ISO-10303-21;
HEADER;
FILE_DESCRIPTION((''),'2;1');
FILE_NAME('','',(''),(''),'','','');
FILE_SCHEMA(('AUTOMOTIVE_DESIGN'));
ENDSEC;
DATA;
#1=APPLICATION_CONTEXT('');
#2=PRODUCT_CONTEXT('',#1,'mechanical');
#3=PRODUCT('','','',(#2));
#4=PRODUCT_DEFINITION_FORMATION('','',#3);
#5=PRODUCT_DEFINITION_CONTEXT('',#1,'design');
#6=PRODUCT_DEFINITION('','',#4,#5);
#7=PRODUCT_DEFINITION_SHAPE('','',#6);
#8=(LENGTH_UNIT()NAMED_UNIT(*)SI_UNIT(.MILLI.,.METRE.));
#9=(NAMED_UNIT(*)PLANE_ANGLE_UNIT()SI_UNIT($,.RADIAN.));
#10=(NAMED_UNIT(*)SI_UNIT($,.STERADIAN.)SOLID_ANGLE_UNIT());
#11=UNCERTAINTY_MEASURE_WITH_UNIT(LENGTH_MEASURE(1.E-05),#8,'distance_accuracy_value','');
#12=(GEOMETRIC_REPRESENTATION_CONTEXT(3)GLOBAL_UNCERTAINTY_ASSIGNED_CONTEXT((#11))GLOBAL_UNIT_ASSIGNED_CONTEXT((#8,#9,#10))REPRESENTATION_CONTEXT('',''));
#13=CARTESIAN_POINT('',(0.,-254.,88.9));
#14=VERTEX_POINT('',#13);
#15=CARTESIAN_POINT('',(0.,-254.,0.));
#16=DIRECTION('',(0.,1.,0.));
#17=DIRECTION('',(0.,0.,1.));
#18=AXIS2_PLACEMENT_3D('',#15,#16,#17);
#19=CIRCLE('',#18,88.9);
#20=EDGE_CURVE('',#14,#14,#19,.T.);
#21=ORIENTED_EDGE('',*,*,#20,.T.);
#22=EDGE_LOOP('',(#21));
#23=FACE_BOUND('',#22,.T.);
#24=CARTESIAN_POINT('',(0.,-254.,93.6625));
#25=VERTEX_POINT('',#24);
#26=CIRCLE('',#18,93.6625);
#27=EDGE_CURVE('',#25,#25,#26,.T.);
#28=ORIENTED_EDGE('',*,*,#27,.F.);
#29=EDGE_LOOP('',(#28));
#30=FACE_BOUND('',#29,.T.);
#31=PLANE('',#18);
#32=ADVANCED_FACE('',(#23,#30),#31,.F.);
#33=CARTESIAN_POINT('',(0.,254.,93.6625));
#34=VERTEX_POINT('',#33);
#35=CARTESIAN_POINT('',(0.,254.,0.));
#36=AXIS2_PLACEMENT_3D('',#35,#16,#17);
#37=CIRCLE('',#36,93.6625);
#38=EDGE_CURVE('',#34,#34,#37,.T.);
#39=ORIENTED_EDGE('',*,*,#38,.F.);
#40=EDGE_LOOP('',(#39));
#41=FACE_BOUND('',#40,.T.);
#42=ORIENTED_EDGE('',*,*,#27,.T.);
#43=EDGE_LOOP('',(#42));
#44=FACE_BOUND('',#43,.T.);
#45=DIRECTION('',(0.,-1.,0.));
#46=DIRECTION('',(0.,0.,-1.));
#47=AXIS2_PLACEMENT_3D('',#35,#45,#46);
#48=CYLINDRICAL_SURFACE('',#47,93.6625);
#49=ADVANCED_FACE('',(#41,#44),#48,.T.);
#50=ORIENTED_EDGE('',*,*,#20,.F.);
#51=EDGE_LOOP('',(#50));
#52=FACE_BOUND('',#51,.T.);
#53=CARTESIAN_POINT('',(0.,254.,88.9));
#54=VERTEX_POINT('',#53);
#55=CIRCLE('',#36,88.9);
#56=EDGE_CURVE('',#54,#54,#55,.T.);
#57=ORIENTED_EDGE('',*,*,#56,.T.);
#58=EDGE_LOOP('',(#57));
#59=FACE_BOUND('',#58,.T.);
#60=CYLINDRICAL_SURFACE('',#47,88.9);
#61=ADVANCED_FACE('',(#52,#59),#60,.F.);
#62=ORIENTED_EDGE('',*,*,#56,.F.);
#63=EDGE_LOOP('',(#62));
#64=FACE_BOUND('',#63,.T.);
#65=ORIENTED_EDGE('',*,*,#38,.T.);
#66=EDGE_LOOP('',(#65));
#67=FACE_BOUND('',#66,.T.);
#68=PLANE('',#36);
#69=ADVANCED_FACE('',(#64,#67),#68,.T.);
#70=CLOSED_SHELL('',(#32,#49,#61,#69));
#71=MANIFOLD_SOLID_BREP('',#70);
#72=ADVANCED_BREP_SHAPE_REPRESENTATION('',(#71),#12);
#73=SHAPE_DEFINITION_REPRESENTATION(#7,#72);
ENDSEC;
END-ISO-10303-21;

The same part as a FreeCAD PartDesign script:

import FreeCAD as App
import Part
import Sketcher

V = App.Vector
Q = App.Units.Quantity

doc = App.newDocument("Part")
body = doc.addObject("PartDesign::Body", "Body")

# Sketch on XZ plane
sketch1 = body.newObject("Sketcher::SketchObject", "Sketch")
sketch1.AttachmentSupport = (doc.getObject("XZ_Plane"), [""])
sketch1.MapMode = "FlatFace"
sketch1.addGeometry([
    Part.Circle(V(0, 0, 0), V(0, 0, 1), 94),
    Part.Circle(V(0, 0, 0), V(0, 0, 1), 89),
], False)
sketch1.addConstraint([
    Sketcher.Constraint("Coincident", 0, 3, -1, 1),
    Sketcher.Constraint("Coincident", 1, 3, -1, 1),
    Sketcher.Constraint("Diameter", 1, Q("7 in")),
    Sketcher.Constraint("Diameter", 0, Q("7.375 in")),
])
pad1 = body.newObject("PartDesign::Pad", "Pad")
pad1.Profile = sketch1
pad1.Length = Q("20 in")
pad1.Midplane = True

doc.recompute()
